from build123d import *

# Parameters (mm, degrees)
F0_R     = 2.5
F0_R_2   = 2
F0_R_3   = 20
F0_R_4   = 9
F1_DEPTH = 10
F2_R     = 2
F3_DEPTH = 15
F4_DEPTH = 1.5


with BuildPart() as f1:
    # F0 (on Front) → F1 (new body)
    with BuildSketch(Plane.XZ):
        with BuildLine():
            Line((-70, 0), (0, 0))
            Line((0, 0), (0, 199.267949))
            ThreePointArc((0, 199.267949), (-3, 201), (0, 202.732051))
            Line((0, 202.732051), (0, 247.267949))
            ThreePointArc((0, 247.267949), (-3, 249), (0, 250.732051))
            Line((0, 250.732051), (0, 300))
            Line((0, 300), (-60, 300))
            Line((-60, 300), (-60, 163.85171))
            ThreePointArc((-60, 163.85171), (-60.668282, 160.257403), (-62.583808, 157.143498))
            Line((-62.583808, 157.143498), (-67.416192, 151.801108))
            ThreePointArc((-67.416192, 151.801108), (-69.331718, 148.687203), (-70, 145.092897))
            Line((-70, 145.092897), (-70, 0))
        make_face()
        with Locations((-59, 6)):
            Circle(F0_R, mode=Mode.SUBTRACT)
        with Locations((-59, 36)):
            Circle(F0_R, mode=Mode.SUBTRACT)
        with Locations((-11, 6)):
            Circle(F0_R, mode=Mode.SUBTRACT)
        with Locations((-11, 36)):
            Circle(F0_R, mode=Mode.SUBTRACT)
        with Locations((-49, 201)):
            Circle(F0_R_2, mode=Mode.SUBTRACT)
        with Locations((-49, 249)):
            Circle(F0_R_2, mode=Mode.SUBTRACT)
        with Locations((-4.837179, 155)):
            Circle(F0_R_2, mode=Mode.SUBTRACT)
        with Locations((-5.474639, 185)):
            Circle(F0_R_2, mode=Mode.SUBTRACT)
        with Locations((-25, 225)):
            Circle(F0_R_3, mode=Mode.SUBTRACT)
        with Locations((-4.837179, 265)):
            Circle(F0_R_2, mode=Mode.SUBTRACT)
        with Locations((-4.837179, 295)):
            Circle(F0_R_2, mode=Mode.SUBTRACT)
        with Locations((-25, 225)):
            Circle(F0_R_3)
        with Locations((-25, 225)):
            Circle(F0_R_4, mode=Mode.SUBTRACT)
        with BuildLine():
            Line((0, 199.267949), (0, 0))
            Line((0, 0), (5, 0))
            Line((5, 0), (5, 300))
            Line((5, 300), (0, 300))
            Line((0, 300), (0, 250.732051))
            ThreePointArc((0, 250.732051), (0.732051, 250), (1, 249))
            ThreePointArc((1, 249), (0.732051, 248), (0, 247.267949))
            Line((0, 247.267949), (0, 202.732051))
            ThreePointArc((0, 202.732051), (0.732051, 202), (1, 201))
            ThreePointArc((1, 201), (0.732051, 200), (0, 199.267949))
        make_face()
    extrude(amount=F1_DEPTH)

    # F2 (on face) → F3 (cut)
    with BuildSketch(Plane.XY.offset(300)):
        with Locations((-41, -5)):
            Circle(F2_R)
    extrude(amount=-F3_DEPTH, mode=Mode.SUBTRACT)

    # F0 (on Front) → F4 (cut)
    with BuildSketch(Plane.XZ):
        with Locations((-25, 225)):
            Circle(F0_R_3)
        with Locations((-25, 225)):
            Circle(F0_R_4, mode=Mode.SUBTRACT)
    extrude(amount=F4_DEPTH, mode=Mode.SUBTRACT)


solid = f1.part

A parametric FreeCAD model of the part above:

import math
import FreeCAD as App
import Part
import Sketcher
from FreeCAD import Vector

doc = App.newDocument("Part")
body = doc.addObject("PartDesign::Body", "Body")

sketch1 = body.newObject("Sketcher::SketchObject", "Sketch")
sketch1.AttachmentSupport = (doc.getObject("XZ_Plane"), [""])
sketch1.MapMode = "FlatFace"
sketch1.addGeometry([
    Part.LineSegment(Vector(-70, 0, 0), Vector(5, 0, 0)),
    Part.LineSegment(Vector(5, 0, 0), Vector(5, 300, 0)),
    Part.LineSegment(Vector(5, 300, 0), Vector(-60, 300, 0)),
    Part.LineSegment(Vector(-60, 300, 0), Vector(-60, 163.85171, 0)),
    Part.ArcOfCircle(Part.Circle(Vector(-70.000002, 163.85171, 0), Vector(0, 0, 1), 10.000002), math.radians(-42.130466), math.radians(0.000001)),
    Part.LineSegment(Vector(-62.583808, 157.143498, 0), Vector(-67.416192, 151.801108, 0)),
    Part.ArcOfCircle(Part.Circle(Vector(-59.999998, 145.092896, 0), Vector(0, 0, 1), 10.000002), math.radians(137.869534), math.radians(179.999995)),
    Part.LineSegment(Vector(-70, 145.092897, 0), Vector(-70, 0, 0)),
    Part.ArcOfCircle(Part.Circle(Vector(-1, 201, 0), Vector(0, 0, 1), 2), math.radians(60.000006), math.radians(299.999994)),
    Part.ArcOfCircle(Part.Circle(Vector(-1, 201, 0), Vector(0, 0, 1), 2), math.radians(-0.000013), math.radians(60.000008)),
    Part.ArcOfCircle(Part.Circle(Vector(-1, 201, 0), Vector(0, 0, 1), 2), math.radians(-60.000008), math.radians(0.000013)),
    Part.ArcOfCircle(Part.Circle(Vector(-1, 249, 0), Vector(0, 0, 1), 2), math.radians(60.000006), math.radians(299.999994)),
    Part.ArcOfCircle(Part.Circle(Vector(-1, 249, 0), Vector(0, 0, 1), 2), math.radians(-0.000013), math.radians(60.000008)),
    Part.ArcOfCircle(Part.Circle(Vector(-1, 249, 0), Vector(0, 0, 1), 2), math.radians(-60.000008), math.radians(0.000013)),
    Part.Circle(Vector(-59, 6, 0), Vector(0, 0, 1), 2.5),
    Part.Circle(Vector(-59, 36, 0), Vector(0, 0, 1), 2.5),
    Part.Circle(Vector(-11, 6, 0), Vector(0, 0, 1), 2.5),
    Part.Circle(Vector(-11, 36, 0), Vector(0, 0, 1), 2.5),
    Part.Circle(Vector(-49, 201, 0), Vector(0, 0, 1), 2),
    Part.Circle(Vector(-49, 249, 0), Vector(0, 0, 1), 2),
    Part.Circle(Vector(-4.837179, 155, 0), Vector(0, 0, 1), 2),
    Part.Circle(Vector(-5.474639, 185, 0), Vector(0, 0, 1), 2),
    Part.Circle(Vector(-25, 225, 0), Vector(0, 0, 1), 9),
    Part.Circle(Vector(-4.837179, 265, 0), Vector(0, 0, 1), 2),
    Part.Circle(Vector(-4.837179, 295, 0), Vector(0, 0, 1), 2),
], False)
sketch1.addConstraint([
    Sketcher.Constraint("Coincident", 0, 2, 1, 1),
    Sketcher.Constraint("Coincident", 1, 2, 2, 1),
    Sketcher.Constraint("Coincident", 2, 2, 3, 1),
    Sketcher.Constraint("Tangent", 3, 2, 4, 2),
    Sketcher.Constraint("Tangent", 4, 1, 5, 1),
    Sketcher.Constraint("Tangent", 5, 2, 6, 1),
    Sketcher.Constraint("Tangent", 6, 2, 7, 1),
    Sketcher.Constraint("Coincident", 7, 2, 0, 1),
    Sketcher.Constraint("Tangent", 8, 1, 9, 2),
    Sketcher.Constraint("Tangent", 9, 1, 10, 2),
    Sketcher.Constraint("Tangent", 10, 1, 8, 2),
    Sketcher.Constraint("Tangent", 11, 1, 12, 2),
    Sketcher.Constraint("Tangent", 12, 1, 13, 2),
    Sketcher.Constraint("Tangent", 13, 1, 11, 2),
    Sketcher.Constraint("Horizontal", 0),
    Sketcher.Constraint("Vertical", 1),
    Sketcher.Constraint("Horizontal", 2),
    Sketcher.Constraint("Vertical", 3),
    Sketcher.Constraint("Vertical", 7),
    Sketcher.Constraint("Equal", 4, 6),
    Sketcher.Constraint("Equal", 10, 11),
    Sketcher.Constraint("Equal", 14, 15),
    Sketcher.Constraint("Equal", 15, 16),
    Sketcher.Constraint("Equal", 16, 17),
    Sketcher.Constraint("Equal", 13, 18),
    Sketcher.Constraint("Equal", 18, 19),
    Sketcher.Constraint("Equal", 19, 20),
    Sketcher.Constraint("Equal", 20, 21),
    Sketcher.Constraint("Equal", 21, 23),
    Sketcher.Constraint("Equal", 23, 24),
    Sketcher.Constraint("PointOnObject", 0, 2, -1),
    Sketcher.Constraint("PointOnObject", 8, 1, -2),
    Sketcher.Constraint("PointOnObject", 10, 1, -2),
    Sketcher.Constraint("PointOnObject", 11, 1, -2),
    Sketcher.Constraint("PointOnObject", 13, 1, -2),
    Sketcher.Constraint("Horizontal", 14, 3, 16, 3),
    Sketcher.Constraint("Horizontal", 15, 3, 17, 3),
    Sketcher.Constraint("Horizontal", 10, 3, 18, 3),
    Sketcher.Constraint("Horizontal", 13, 3, 19, 3),
    Sketcher.Constraint("Horizontal", 18, 3, 9, 1),
    Sketcher.Constraint("Horizontal", 19, 3, 12, 1),
    Sketcher.Constraint("Vertical", 10, 3, 11, 3),
    Sketcher.Constraint("Vertical", 14, 3, 15, 3),
    Sketcher.Constraint("Vertical", 16, 3, 17, 3),
    Sketcher.Constraint("Vertical", 18, 3, 19, 3),
    Sketcher.Constraint("Vertical", 20, 3, 23, 3),
    Sketcher.Constraint("Vertical", 23, 3, 24, 3),
    Sketcher.Constraint("Vertical", 6, 3, 2, 2),
    Sketcher.Constraint("Diameter", 14, 5.0),
    Sketcher.Constraint("Diameter", 18, 4.0),
    Sketcher.Constraint("Diameter", 22, 18.0),
    Sketcher.Constraint("Radius", 4, 10.000002),
    Sketcher.Constraint("DistanceX", 0, 1, 0, 2, 75.0),
    Sketcher.Constraint("DistanceY", 1, 1, 1, 2, 300.0),
    Sketcher.Constraint("DistanceX", 4, 3, -1, 1, 70.000002),
    Sketcher.Constraint("DistanceX", 8, 3, -1, 1, 1.0),
    Sketcher.Constraint("DistanceY", -1, 1, 8, 3, 201.0),
    Sketcher.Constraint("DistanceY", -1, 1, 11, 3, 249.0),
    Sketcher.Constraint("DistanceX", 14, 3, -1, 1, 59.0),
    Sketcher.Constraint("DistanceY", -1, 1, 14, 3, 6.0),
    Sketcher.Constraint("DistanceY", -1, 1, 15, 3, 36.0),
    Sketcher.Constraint("DistanceX", 16, 3, -1, 1, 11.0),
    Sketcher.Constraint("DistanceX", 18, 3, -1, 1, 49.0),
    Sketcher.Constraint("DistanceY", -1, 1, 20, 3, 155.0),
    Sketcher.Constraint("DistanceY", -1, 1, 21, 3, 185.0),
    Sketcher.Constraint("DistanceX", 22, 3, -1, 1, 25.0),
    Sketcher.Constraint("DistanceY", -1, 1, 22, 3, 225.0),
    Sketcher.Constraint("DistanceY", -1, 1, 23, 3, 265.0),
    Sketcher.Constraint("DistanceY", -1, 1, 24, 3, 295.0),
    Sketcher.Constraint("DistanceY", 3, 2, 3, 1, 136.14829),
    Sketcher.Constraint("DistanceY", -1, 1, 4, 1, 157.143498),
    Sketcher.Constraint("DistanceX", 20, 3, -1, 1, 4.837179),
    Sketcher.Constraint("DistanceX", 21, 3, -1, 1, 5.474639),
])
pad1 = body.newObject("PartDesign::Pad", "Pad")
pad1.Profile = sketch1
pad1.Length = 10

sketch2 = body.newObject("Sketcher::SketchObject", "Sketch001")
sketch2.AttachmentSupport = (doc.getObject("XY_Plane"), [""])
sketch2.MapMode = "FlatFace"
sketch2.AttachmentOffset = App.Placement(Vector(0, 0, 300), App.Rotation())
sketch2.addGeometry(Part.Circle(Vector(-41, -5, 0), Vector(0, 0, 1), 2), False)
sketch2.addConstraint([
    Sketcher.Constraint("Diameter", 0, 4.0),
    Sketcher.Constraint("DistanceX", 0, 3, -1, 1, 41.0),
    Sketcher.Constraint("DistanceY", 0, 3, -1, 1, 5.0),
])
pocket1 = body.newObject("PartDesign::Pocket", "Pocket")
pocket1.Profile = sketch2
pocket1.Length = 15

sketch3 = body.newObject("Sketcher::SketchObject", "Sketch002")
sketch3.AttachmentSupport = (doc.getObject("XZ_Plane"), [""])
sketch3.MapMode = "FlatFace"
sketch3.addGeometry([
    Part.Circle(Vector(-25, 225, 0), Vector(0, 0, 1), 20),
    Part.Circle(Vector(-25, 225, 0), Vector(0, 0, 1), 9),
], False)
sketch3.addConstraint([
    Sketcher.Constraint("Coincident", 1, 3, 0, 3),
    Sketcher.Constraint("Diameter", 0, 40.0),
    Sketcher.Constraint("Diameter", 1, 18.0),
    Sketcher.Constraint("DistanceX", 0, 3, -1, 1, 25.0),
    Sketcher.Constraint("DistanceY", -1, 1, 0, 3, 225.0),
])
pocket2 = body.newObject("PartDesign::Pocket", "Pocket001")
pocket2.Profile = sketch3
pocket2.Length = 1.5
pocket2.Reversed = True

doc.recompute()
